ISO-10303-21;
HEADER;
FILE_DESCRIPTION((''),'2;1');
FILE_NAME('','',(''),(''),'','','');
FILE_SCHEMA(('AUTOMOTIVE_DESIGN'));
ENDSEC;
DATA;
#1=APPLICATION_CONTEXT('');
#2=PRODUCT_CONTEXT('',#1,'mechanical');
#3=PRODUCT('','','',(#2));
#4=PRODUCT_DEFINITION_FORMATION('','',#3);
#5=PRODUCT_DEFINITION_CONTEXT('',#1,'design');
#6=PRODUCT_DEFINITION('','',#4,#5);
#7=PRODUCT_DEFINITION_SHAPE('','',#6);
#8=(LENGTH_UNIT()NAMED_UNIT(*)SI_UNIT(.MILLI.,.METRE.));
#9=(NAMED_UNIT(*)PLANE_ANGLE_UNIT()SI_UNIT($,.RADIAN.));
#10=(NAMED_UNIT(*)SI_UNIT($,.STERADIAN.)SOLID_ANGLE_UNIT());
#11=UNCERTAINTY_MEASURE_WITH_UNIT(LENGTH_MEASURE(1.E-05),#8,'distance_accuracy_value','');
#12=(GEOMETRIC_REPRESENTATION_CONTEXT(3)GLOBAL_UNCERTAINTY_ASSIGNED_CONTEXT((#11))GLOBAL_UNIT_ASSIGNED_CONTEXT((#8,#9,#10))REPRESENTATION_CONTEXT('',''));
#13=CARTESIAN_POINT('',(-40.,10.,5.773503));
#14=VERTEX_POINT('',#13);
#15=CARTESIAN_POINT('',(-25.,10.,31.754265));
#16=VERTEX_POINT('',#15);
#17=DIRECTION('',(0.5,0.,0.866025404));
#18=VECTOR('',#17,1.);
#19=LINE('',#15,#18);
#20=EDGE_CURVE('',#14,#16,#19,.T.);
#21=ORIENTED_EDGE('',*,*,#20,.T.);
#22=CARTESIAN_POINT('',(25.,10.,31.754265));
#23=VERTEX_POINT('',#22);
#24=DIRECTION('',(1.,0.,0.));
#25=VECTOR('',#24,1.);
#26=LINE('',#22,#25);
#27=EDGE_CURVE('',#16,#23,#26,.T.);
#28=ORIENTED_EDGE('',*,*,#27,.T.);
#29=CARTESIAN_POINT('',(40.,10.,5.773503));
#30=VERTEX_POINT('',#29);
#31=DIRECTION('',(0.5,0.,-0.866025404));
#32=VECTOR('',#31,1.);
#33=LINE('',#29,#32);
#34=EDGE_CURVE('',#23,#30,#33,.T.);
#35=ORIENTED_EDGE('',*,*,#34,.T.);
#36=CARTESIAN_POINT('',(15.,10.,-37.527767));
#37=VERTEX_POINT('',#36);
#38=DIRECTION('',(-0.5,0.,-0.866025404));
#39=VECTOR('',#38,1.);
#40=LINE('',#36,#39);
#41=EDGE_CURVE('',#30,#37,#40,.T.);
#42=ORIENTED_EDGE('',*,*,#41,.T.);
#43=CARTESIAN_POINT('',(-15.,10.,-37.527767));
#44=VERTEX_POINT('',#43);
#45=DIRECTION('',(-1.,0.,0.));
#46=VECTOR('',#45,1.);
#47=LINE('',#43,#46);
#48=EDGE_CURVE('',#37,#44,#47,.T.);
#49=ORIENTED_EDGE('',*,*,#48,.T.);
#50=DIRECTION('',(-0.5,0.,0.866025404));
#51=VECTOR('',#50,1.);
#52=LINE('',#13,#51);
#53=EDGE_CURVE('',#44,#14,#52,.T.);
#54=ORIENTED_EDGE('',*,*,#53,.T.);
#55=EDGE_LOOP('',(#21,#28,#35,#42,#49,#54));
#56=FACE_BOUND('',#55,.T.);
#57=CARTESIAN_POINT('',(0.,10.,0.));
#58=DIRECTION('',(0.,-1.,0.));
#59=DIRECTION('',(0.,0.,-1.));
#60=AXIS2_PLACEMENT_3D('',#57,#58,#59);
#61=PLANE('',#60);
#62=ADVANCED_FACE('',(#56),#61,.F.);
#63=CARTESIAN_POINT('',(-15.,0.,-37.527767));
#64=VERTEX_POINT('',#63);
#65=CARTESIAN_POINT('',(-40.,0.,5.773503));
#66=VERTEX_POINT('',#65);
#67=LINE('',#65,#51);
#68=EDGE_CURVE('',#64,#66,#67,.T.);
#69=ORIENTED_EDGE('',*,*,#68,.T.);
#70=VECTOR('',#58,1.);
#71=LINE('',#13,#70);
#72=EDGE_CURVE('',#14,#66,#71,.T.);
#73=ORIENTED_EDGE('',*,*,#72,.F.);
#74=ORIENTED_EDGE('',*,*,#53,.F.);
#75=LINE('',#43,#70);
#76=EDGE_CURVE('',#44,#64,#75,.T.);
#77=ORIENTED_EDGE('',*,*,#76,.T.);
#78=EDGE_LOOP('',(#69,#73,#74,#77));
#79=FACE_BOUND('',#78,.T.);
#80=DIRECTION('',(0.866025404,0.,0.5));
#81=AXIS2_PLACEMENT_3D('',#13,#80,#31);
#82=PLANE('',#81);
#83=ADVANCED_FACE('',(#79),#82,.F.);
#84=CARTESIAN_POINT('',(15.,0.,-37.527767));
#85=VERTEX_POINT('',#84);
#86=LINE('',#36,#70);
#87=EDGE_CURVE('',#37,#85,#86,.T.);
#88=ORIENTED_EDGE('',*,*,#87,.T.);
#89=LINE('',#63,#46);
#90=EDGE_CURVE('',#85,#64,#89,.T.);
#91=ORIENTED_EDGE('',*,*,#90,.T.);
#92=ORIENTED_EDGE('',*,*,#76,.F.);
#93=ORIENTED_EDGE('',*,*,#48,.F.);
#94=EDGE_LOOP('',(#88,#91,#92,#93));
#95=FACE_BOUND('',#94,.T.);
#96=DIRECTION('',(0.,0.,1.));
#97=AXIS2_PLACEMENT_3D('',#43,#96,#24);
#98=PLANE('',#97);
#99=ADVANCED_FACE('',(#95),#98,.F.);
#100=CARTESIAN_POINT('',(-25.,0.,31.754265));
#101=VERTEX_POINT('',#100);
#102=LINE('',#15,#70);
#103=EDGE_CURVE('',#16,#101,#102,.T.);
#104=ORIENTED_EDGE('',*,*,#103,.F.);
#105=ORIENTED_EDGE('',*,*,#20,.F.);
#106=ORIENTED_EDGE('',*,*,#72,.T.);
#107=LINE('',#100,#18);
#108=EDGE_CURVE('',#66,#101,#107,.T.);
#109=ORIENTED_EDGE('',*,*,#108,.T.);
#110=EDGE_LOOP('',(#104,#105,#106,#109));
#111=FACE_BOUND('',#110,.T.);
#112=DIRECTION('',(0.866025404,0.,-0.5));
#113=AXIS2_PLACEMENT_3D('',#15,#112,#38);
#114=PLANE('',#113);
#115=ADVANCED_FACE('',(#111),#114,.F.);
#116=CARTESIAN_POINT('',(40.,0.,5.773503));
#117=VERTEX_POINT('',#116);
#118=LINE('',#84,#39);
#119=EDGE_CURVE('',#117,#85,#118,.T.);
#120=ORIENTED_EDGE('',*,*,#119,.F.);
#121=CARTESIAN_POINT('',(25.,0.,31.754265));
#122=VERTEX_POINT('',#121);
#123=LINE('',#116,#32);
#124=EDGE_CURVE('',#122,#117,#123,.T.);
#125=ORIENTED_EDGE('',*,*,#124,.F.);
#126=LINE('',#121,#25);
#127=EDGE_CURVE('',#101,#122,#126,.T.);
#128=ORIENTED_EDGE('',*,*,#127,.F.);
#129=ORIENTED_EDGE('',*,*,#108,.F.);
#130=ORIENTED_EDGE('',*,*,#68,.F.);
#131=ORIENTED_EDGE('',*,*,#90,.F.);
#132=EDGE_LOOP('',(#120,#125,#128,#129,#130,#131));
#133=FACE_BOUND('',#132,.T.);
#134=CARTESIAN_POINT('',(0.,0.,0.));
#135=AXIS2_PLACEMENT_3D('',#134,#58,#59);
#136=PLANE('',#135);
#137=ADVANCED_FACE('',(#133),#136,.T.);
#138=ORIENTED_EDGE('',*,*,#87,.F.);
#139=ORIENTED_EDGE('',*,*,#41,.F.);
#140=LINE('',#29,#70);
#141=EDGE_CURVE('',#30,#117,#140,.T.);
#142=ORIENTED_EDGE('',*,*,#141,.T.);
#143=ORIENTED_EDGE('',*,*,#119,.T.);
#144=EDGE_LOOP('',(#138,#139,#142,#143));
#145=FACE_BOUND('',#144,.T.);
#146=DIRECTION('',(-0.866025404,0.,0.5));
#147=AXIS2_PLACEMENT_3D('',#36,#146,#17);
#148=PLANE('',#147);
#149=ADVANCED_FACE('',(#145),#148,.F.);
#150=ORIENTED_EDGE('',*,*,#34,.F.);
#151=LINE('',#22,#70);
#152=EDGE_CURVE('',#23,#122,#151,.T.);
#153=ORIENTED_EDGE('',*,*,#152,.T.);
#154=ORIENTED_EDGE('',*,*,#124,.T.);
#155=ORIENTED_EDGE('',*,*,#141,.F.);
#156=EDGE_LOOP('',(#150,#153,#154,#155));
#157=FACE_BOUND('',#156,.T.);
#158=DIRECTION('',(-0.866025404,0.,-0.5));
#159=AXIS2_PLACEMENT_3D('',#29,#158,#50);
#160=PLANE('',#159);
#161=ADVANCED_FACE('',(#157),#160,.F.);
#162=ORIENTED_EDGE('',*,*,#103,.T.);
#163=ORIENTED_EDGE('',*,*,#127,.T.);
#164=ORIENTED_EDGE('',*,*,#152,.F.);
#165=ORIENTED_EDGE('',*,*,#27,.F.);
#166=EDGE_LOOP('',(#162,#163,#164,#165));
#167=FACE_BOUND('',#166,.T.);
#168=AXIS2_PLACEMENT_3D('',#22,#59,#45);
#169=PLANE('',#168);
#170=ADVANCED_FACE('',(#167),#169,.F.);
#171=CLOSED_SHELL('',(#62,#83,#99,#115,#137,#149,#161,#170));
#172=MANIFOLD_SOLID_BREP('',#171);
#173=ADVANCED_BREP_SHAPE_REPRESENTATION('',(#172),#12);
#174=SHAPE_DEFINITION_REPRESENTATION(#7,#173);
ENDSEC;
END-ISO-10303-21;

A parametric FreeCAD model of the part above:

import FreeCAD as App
import Part
import Sketcher
Q = App.Units.Quantity


def add_polygon(sketch, points):
    """Adds a closed chain of lines whose ends are joined by coincident constraints."""
    first, n = sketch.GeometryCount, len(points)
    for a, b in zip(points, points[1:] + points[:1]):
        sketch.addGeometry(Part.LineSegment(App.Vector(*a, 0), App.Vector(*b, 0)), False)
    for i in range(n):
        sketch.addConstraint(Sketcher.Constraint("Coincident", first + i, 2, first + (i + 1) % n, 1))

doc = App.newDocument("Part")
body = doc.addObject("PartDesign::Body", "Body")

sketch1 = body.newObject("Sketcher::SketchObject", "Sketch")
sketch1.AttachmentSupport = (doc.getObject("XZ_Plane"), [""])
sketch1.MapMode = "FlatFace"
add_polygon(sketch1, [(15, -37.527767), (-15, -37.527767), (-40, 5.773503), (-25, 31.754265), (25, 31.754265), (40, 5.773503)])
sketch1.addConstraint([
    Sketcher.Constraint("Horizontal", 0),
    Sketcher.Constraint("Horizontal", 3),
    Sketcher.Constraint("Symmetric", 1, 2, 4, 2, -2),
    Sketcher.Constraint("Parallel", 1, 4),
    Sketcher.Constraint("Parallel", 2, 5),
    Sketcher.Constraint("Equal", 2, 4),
    Sketcher.Constraint("DistanceX", 0, 2, 0, 1, 30.0),
    Sketcher.Constraint("DistanceX", 3, 1, 3, 2, 50.0),
    Sketcher.Constraint("Angle", 1, Q("120 deg")),
    Sketcher.Constraint("Distance", 1, 50.0),
    Sketcher.Constraint("DistanceY", 0, 2, -1, 1, 37.527767),
])
pad1 = body.newObject("PartDesign::Pad", "Pad")
pad1.Profile = sketch1
pad1.Length = 10
pad1.Reversed = True

doc.recompute()
